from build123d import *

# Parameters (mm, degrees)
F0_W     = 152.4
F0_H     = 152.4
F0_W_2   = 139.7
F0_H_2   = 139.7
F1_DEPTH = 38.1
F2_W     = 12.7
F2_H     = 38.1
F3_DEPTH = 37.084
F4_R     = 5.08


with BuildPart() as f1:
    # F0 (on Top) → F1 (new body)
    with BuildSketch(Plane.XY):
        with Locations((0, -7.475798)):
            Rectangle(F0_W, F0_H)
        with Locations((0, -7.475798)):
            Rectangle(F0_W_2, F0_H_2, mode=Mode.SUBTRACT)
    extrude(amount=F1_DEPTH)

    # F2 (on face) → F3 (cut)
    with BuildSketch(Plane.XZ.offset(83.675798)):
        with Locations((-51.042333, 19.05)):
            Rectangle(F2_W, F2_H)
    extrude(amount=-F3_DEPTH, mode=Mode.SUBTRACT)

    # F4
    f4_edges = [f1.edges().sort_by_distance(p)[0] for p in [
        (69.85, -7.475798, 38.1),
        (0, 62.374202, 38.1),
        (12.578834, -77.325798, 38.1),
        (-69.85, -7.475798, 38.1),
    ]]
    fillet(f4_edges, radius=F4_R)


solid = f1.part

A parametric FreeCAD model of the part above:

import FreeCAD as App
import Part
import Sketcher
Q = App.Units.Quantity


def edges_at(feature, points):
    """Names of the edges that pass closest to the given points."""
    edges = feature.Shape.Edges
    near = lambda p: min(range(len(edges)), key=lambda i: edges[i].distToShape(Part.Vertex(*p))[0])
    return sorted({f"Edge{near(p) + 1}" for p in points})


def add_polygon(sketch, points):
    """Adds a closed chain of lines whose ends are joined by coincident constraints."""
    first, n = sketch.GeometryCount, len(points)
    for a, b in zip(points, points[1:] + points[:1]):
        sketch.addGeometry(Part.LineSegment(App.Vector(*a, 0), App.Vector(*b, 0)), False)
    for i in range(n):
        sketch.addConstraint(Sketcher.Constraint("Coincident", first + i, 2, first + (i + 1) % n, 1))

doc = App.newDocument("Part")
body = doc.addObject("PartDesign::Body", "Body")

# Sketch on XY plane
sketch1 = doc.addObject("Sketcher::SketchObject", "Sketch")
body.addObject(sketch1)
sketch1.AttachmentSupport = (doc.XY_Plane, [""])
sketch1.MapMode = "FlatFace"
add_polygon(sketch1, [(-76, 69), (-76, -84), (76, -84), (76, 69)])  # lines 0-3
add_polygon(sketch1, [(70, -77), (-70, -77), (-70, 62), (70, 62)])  # lines 4-7
sketch1.addConstraint(Sketcher.Constraint("Vertical", 0))
sketch1.addConstraint(Sketcher.Constraint("Horizontal", 1))
sketch1.addConstraint(Sketcher.Constraint("Vertical", 2))
sketch1.addConstraint(Sketcher.Constraint("Horizontal", 3))
sketch1.addConstraint(Sketcher.Constraint("Horizontal", 4))
sketch1.addConstraint(Sketcher.Constraint("Vertical", 5))
sketch1.addConstraint(Sketcher.Constraint("Horizontal", 6))
sketch1.addConstraint(Sketcher.Constraint("Vertical", 7))
sketch1.addConstraint(Sketcher.Constraint("Equal", 3, 0))
sketch1.addConstraint(Sketcher.Constraint("Equal", 6, 5))
sketch1.addConstraint(Sketcher.Constraint("DistanceX", 1, 1, 1, 2, Q("6 in")))
sketch1.addConstraint(Sketcher.Constraint("DistanceX", 4, 2, 4, 1, Q("5.5 in")))
sketch1.addConstraint(Sketcher.Constraint("DistanceX", 0, 2, -1, 1, Q("3 in")))
sketch1.addConstraint(Sketcher.Constraint("DistanceX", 4, 2, -1, 1, Q("2.75 in")))
sketch1.addConstraint(Sketcher.Constraint("DistanceY", 0, 2, 4, 2, Q("0.25 in")))
sketch1.addConstraint(Sketcher.Constraint("DistanceY", 0, 2, -1, 1, 83.675798))
pad1 = doc.addObject("PartDesign::Pad", "Pad")
body.addObject(pad1)
pad1.Profile = sketch1
pad1.Length = Q("1.5 in")

# Sketch on XZ plane
sketch2 = doc.addObject("Sketcher::SketchObject", "Sketch001")
body.addObject(sketch2)
sketch2.AttachmentSupport = (doc.XZ_Plane, [""])
sketch2.MapMode = "FlatFace"
sketch2.AttachmentOffset = App.Placement(App.Vector(0, 0, 83.675798), App.Rotation())
add_polygon(sketch2, [(-57, 38), (-57, 0), (-45, 0), (-45, 38)])  # lines 0-3
sketch2.addConstraint(Sketcher.Constraint("Vertical", 0))
sketch2.addConstraint(Sketcher.Constraint("Horizontal", 1))
sketch2.addConstraint(Sketcher.Constraint("Vertical", 2))
sketch2.addConstraint(Sketcher.Constraint("Horizontal", 3))
sketch2.addConstraint(Sketcher.Constraint("PointOnObject", 0, 2, -1))
sketch2.addConstraint(Sketcher.Constraint("DistanceX", 1, 1, 1, 2, Q("0.5 in")))
sketch2.addConstraint(Sketcher.Constraint("DistanceY", 0, 2, 0, 1, Q("1.5 in")))
sketch2.addConstraint(Sketcher.Constraint("DistanceX", 0, 2, -1, 1, 57.392333))
pocket1 = doc.addObject("PartDesign::Pocket", "Pocket")
body.addObject(pocket1)
pocket1.Profile = sketch2
pocket1.Length = Q("1.46 in")
doc.recompute()

fillet = doc.addObject("PartDesign::Fillet", "Fillet")
body.addObject(fillet)
fillet.Base = (pocket1, edges_at(pocket1, [
    (69.85, -7.476, 38.1),
    (0, 62.374, 38.1),
    (12.579, -77.326, 38.1),
    (-69.85, -7.476, 38.1),
]))
fillet.Radius = Q("0.2 in")

doc.recompute()
